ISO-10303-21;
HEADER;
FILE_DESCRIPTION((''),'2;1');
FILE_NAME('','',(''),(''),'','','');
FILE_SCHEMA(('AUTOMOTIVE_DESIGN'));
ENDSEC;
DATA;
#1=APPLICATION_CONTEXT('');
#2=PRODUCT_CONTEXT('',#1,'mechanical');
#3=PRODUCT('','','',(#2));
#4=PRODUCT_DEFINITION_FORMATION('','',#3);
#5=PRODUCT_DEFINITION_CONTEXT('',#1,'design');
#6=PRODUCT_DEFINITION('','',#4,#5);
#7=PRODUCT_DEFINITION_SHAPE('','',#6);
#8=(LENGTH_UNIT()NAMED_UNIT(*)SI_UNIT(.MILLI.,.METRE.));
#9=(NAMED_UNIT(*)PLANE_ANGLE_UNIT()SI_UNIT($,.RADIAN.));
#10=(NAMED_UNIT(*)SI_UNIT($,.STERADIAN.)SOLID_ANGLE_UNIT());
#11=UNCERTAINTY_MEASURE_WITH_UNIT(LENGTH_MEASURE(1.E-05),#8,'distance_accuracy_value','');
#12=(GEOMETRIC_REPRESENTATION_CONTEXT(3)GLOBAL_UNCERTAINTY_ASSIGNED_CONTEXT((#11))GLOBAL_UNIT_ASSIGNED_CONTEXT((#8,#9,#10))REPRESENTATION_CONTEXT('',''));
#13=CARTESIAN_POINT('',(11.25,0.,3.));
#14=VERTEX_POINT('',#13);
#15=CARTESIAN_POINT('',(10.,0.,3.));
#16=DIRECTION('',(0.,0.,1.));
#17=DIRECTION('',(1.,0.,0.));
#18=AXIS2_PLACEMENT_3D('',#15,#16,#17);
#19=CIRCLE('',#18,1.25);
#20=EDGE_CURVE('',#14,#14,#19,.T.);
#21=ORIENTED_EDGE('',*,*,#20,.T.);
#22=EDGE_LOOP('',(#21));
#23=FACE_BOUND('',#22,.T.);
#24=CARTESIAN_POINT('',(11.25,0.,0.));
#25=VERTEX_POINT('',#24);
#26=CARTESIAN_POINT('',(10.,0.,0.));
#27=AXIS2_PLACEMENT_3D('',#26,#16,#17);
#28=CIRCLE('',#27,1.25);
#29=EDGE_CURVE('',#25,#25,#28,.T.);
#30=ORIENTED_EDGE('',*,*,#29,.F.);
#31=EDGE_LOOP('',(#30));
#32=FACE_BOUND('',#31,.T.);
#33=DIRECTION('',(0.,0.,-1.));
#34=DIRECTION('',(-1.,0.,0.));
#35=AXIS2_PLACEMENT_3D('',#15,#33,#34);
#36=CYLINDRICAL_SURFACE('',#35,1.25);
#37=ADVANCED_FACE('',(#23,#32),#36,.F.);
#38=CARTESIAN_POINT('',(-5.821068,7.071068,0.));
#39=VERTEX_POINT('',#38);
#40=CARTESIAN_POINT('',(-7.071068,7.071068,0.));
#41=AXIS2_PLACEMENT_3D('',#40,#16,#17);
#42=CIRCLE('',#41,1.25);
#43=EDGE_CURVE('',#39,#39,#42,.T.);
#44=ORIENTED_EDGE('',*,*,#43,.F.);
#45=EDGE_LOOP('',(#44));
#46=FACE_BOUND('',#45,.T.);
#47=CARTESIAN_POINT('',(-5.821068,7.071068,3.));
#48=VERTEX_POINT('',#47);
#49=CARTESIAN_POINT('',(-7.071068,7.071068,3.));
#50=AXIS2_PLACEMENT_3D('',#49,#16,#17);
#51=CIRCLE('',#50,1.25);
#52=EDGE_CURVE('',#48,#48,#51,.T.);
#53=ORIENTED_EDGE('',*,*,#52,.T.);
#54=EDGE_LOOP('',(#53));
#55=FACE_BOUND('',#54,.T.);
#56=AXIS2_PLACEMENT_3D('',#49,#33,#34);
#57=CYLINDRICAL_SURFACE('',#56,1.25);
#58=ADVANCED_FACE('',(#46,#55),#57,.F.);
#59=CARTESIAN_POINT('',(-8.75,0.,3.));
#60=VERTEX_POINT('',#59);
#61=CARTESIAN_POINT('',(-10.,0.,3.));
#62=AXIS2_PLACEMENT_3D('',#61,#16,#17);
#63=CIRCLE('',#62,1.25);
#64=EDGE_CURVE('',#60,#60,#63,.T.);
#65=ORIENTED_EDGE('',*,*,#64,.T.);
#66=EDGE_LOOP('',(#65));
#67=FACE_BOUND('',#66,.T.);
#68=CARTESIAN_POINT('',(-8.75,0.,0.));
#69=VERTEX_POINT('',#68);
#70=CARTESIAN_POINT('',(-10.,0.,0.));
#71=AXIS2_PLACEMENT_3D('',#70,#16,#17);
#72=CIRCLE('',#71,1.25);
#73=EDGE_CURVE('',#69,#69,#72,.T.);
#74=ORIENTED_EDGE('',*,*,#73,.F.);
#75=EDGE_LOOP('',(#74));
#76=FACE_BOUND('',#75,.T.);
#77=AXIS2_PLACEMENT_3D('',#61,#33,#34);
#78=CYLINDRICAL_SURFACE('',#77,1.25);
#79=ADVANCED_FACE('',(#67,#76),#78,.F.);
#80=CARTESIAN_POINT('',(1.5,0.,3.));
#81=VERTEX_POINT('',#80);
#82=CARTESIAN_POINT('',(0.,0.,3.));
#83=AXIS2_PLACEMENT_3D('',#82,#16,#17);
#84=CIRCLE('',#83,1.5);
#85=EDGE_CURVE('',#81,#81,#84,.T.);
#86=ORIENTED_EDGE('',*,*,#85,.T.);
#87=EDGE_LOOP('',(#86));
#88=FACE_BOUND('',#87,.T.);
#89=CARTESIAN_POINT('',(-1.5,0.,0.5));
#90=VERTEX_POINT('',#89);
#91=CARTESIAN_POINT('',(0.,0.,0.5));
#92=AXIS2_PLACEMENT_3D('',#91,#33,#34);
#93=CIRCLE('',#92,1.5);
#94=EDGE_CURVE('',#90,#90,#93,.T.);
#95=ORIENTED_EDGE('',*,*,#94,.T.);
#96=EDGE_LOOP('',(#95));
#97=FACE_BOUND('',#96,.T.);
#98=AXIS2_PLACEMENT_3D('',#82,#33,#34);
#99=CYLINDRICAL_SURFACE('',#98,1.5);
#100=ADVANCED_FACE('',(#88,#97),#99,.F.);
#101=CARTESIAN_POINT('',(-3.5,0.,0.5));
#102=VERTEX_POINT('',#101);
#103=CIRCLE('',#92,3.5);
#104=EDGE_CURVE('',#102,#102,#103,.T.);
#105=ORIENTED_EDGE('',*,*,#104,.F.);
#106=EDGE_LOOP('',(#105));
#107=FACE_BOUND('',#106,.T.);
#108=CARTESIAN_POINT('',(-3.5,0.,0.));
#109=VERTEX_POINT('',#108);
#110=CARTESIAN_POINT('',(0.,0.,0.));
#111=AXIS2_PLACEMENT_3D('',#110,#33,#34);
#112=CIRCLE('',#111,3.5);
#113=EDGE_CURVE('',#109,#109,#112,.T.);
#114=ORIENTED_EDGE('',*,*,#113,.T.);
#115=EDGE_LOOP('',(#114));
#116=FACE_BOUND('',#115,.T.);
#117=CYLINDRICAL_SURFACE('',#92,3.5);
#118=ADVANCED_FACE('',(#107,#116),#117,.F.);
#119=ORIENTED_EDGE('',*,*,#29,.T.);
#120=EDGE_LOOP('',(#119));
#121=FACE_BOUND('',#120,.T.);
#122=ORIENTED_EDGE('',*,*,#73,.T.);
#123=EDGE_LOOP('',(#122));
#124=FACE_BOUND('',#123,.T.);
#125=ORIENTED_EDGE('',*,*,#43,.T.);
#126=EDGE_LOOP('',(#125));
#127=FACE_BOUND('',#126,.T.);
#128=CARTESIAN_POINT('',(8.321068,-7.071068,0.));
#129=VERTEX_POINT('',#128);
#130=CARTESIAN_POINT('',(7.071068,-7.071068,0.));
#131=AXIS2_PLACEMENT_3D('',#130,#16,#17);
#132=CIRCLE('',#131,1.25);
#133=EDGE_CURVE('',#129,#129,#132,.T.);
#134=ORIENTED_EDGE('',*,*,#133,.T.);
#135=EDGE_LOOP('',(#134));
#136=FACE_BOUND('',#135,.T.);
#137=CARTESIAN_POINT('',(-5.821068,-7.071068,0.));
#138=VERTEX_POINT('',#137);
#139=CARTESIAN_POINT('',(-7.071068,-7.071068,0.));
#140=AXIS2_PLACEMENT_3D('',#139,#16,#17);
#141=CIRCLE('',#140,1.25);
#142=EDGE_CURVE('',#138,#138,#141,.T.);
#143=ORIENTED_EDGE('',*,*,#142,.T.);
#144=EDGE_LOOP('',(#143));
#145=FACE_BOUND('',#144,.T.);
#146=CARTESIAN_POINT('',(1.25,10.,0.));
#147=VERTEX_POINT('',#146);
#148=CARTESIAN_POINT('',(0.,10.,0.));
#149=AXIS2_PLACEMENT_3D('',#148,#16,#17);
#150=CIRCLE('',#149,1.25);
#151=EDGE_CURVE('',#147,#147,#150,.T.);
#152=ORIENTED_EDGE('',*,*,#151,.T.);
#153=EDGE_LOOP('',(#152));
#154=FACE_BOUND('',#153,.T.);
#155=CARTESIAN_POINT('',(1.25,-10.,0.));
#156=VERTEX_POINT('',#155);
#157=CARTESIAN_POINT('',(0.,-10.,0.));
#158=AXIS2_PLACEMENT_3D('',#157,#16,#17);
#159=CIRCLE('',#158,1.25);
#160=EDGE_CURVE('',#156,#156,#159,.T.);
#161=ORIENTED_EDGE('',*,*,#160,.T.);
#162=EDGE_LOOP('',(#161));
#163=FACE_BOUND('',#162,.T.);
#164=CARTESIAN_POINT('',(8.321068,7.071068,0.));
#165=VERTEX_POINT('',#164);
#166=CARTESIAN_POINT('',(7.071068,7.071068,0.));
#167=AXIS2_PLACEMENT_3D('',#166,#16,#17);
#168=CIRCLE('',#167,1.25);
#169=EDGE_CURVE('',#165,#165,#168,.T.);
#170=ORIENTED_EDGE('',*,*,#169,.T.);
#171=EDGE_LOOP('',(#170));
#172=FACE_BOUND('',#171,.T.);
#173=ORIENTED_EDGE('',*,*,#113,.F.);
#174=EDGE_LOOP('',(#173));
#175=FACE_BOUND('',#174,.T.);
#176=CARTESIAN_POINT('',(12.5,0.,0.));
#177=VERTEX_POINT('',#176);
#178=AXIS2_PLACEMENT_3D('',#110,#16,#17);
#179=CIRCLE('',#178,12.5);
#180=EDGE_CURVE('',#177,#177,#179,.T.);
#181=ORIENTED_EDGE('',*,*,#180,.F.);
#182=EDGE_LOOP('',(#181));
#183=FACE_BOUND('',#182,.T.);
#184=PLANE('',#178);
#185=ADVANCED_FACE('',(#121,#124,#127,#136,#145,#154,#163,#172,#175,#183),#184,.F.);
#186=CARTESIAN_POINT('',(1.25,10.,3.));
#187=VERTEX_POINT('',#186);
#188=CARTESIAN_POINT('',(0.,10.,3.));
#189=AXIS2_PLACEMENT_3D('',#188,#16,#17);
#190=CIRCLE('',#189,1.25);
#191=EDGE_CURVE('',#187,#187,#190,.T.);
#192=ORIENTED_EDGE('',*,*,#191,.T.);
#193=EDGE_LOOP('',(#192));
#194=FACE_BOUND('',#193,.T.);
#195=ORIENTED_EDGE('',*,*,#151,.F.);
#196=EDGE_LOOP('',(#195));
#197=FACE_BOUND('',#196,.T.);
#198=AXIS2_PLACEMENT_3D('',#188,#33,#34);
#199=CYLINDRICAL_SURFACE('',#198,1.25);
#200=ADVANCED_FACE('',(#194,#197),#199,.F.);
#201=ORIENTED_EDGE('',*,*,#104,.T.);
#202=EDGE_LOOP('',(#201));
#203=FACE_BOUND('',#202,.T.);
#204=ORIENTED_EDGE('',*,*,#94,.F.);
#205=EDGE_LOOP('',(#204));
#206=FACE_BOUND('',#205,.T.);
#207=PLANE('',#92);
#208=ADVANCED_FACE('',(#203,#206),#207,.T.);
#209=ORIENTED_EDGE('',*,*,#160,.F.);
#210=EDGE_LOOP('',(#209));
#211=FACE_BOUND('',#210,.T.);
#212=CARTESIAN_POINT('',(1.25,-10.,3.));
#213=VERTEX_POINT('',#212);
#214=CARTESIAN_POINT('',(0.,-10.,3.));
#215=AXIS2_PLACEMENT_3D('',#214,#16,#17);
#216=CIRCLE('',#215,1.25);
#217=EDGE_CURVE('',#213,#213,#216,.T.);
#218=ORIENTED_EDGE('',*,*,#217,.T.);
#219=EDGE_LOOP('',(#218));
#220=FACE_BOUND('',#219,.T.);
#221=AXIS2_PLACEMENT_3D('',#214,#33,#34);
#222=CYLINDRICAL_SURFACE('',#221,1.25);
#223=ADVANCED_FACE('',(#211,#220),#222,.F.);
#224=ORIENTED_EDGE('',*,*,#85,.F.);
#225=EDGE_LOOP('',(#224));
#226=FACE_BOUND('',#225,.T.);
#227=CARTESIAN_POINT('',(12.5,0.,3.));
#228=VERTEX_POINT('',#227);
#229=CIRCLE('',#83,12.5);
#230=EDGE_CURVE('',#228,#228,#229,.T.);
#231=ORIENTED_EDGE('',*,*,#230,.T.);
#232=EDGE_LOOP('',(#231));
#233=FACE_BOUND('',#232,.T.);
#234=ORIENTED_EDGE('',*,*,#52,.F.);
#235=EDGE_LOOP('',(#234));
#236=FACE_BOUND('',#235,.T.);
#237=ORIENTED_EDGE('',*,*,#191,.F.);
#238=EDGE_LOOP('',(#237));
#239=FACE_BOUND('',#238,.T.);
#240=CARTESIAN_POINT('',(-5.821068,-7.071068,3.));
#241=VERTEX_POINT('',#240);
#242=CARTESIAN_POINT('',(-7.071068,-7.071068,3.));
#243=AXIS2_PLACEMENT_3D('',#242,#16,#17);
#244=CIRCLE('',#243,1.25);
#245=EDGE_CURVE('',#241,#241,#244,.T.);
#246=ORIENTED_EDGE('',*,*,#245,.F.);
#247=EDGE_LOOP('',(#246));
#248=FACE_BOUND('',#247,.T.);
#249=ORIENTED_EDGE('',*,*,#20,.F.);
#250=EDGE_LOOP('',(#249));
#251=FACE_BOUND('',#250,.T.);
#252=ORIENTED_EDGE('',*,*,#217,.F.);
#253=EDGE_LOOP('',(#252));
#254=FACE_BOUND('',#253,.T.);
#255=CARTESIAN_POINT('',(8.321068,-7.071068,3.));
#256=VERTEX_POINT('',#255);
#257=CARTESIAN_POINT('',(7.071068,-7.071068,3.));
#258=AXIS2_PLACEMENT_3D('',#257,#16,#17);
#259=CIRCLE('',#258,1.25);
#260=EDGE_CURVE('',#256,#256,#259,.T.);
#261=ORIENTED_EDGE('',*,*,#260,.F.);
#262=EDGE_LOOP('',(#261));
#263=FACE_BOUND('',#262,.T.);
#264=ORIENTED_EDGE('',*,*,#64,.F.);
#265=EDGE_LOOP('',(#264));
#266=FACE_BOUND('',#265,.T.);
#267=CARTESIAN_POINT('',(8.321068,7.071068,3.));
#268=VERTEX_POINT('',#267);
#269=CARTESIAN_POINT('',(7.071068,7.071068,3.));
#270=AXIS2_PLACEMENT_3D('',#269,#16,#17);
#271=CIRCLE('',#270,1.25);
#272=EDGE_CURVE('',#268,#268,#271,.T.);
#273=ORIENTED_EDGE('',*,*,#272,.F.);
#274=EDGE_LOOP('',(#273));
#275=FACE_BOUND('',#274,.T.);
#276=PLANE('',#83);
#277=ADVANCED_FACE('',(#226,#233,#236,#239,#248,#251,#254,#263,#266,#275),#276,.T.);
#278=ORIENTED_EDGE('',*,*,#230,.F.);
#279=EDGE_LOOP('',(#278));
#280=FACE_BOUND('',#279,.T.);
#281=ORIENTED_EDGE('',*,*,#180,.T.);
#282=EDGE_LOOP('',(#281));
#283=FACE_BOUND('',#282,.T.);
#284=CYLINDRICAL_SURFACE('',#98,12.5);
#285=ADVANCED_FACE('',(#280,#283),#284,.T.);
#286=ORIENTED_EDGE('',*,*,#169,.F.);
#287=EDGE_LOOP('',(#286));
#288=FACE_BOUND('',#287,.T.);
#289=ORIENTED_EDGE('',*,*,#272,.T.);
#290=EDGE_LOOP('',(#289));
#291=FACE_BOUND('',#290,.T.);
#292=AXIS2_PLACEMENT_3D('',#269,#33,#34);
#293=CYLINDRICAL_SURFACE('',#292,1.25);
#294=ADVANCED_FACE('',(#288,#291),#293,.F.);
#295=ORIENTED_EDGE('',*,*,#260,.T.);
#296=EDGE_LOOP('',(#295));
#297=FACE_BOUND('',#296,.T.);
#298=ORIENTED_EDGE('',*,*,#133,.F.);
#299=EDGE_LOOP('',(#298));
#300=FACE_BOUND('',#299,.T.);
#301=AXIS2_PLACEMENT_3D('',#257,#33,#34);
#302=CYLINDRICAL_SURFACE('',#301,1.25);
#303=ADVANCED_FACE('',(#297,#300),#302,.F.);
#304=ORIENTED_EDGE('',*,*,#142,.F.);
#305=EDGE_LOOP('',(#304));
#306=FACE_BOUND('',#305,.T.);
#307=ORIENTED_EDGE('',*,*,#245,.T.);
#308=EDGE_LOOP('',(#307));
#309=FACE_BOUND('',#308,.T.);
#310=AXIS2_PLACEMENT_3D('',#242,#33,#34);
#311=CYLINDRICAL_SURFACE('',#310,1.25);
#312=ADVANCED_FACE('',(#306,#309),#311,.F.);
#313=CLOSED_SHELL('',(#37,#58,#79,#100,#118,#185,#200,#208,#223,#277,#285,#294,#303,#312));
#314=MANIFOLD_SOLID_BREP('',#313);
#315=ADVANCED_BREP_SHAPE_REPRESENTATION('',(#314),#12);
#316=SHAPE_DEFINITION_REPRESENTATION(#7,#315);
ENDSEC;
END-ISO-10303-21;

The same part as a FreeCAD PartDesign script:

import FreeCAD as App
import Part
import Sketcher

V = App.Vector
Q = App.Units.Quantity

doc = App.newDocument("Part")
body = doc.addObject("PartDesign::Body", "Body")

sketch1 = body.newObject("Sketcher::SketchObject", "Sketch")
sketch1.AttachmentSupport = (doc.getObject("XY_Plane"), [""])
sketch1.MapMode = "FlatFace"
sketch1.addGeometry(Part.Circle(V(0, 0, 0), V(0, 0, 1), 12.5), False)
sketch1.addGeometry(Part.Circle(V(-7.1, -7.1, 0), V(0, 0, 1), 1.2), False)
sketch1.addGeometry(Part.Circle(V(0, -10, 0), V(0, 0, 1), 1.2), False)
sketch1.addGeometry(Part.Circle(V(7.1, -7.1, 0), V(0, 0, 1), 1.2), False)
sketch1.addGeometry(Part.Circle(V(-10, 0, 0), V(0, 0, 1), 1.2), False)
sketch1.addGeometry(Part.Circle(V(-7.1, 7.1, 0), V(0, 0, 1), 1.2), False)
sketch1.addGeometry(Part.Circle(V(0, 0, 0), V(0, 0, 1), 1.5), False)
sketch1.addGeometry(Part.Circle(V(10, 0, 0), V(0, 0, 1), 1.2), False)
sketch1.addGeometry(Part.Circle(V(0, 10, 0), V(0, 0, 1), 1.2), False)
sketch1.addGeometry(Part.Circle(V(7.1, 7.1, 0), V(0, 0, 1), 1.2), False)
sketch1.addConstraint(Sketcher.Constraint("Coincident", 0, 3, -1, 1))
sketch1.addConstraint(Sketcher.Constraint("Coincident", 6, 3, -1, 1))
sketch1.addConstraint(Sketcher.Constraint("Equal", 1, 2))
sketch1.addConstraint(Sketcher.Constraint("Equal", 2, 3))
sketch1.addConstraint(Sketcher.Constraint("Equal", 3, 4))
sketch1.addConstraint(Sketcher.Constraint("Equal", 4, 5))
sketch1.addConstraint(Sketcher.Constraint("Equal", 5, 7))
sketch1.addConstraint(Sketcher.Constraint("Equal", 7, 8))
sketch1.addConstraint(Sketcher.Constraint("Equal", 8, 9))
sketch1.addConstraint(Sketcher.Constraint("Symmetric", 3, 3, 5, 3, -1, 1))
sketch1.addConstraint(Sketcher.Constraint("Symmetric", 4, 3, 7, 3, -1, 1))
sketch1.addConstraint(Sketcher.Constraint("Symmetric", 2, 3, 8, 3, -1, 1))
sketch1.addConstraint(Sketcher.Constraint("Symmetric", 1, 3, 9, 3, -1, 1))
sketch1.addConstraint(Sketcher.Constraint("Symmetric", 1, 3, 3, 3, -2))
sketch1.addConstraint(Sketcher.Constraint("PointOnObject", 2, 3, -2))
sketch1.addConstraint(Sketcher.Constraint("PointOnObject", 4, 3, -1))
sketch1.addConstraint(Sketcher.Constraint("Diameter", 0, Q("25 mm")))
sketch1.addConstraint(Sketcher.Constraint("Diameter", 6, Q("3 mm")))
sketch1.addConstraint(Sketcher.Constraint("Diameter", 1, Q("2.5 mm")))
sketch1.addConstraint(Sketcher.Constraint("DistanceY", 2, 3, -1, 1, Q("10 mm")))
sketch1.addConstraint(Sketcher.Constraint("DistanceX", 4, 3, -1, 1, Q("10 mm")))
sketch1.addConstraint(Sketcher.Constraint("DistanceX", 1, 3, -1, 1, Q("7.071068 mm")))
sketch1.addConstraint(Sketcher.Constraint("DistanceY", 1, 3, -1, 1, Q("7.071068 mm")))
pad1 = body.newObject("PartDesign::Pad", "Pad")
pad1.Profile = sketch1
pad1.Length = 3

sketch2 = body.newObject("Sketcher::SketchObject", "Sketch001")
sketch2.AttachmentSupport = (doc.getObject("XY_Plane"), [""])
sketch2.MapMode = "FlatFace"
sketch2.addGeometry(Part.Circle(V(0, 0, 0), V(0, 0, 1), 3.5), False)
sketch2.addGeometry(Part.Circle(V(0, 0, 0), V(0, 0, 1), 1.5), False)
sketch2.addConstraint(Sketcher.Constraint("Coincident", 0, 3, -1, 1))
sketch2.addConstraint(Sketcher.Constraint("Coincident", 1, 3, -1, 1))
sketch2.addConstraint(Sketcher.Constraint("Diameter", 0, Q("7 mm")))
sketch2.addConstraint(Sketcher.Constraint("Diameter", 1, Q("3 mm")))
pocket1 = body.newObject("PartDesign::Pocket", "Pocket")
pocket1.Profile = sketch2
pocket1.Length = 0.5
pocket1.Reversed = True

doc.recompute()
